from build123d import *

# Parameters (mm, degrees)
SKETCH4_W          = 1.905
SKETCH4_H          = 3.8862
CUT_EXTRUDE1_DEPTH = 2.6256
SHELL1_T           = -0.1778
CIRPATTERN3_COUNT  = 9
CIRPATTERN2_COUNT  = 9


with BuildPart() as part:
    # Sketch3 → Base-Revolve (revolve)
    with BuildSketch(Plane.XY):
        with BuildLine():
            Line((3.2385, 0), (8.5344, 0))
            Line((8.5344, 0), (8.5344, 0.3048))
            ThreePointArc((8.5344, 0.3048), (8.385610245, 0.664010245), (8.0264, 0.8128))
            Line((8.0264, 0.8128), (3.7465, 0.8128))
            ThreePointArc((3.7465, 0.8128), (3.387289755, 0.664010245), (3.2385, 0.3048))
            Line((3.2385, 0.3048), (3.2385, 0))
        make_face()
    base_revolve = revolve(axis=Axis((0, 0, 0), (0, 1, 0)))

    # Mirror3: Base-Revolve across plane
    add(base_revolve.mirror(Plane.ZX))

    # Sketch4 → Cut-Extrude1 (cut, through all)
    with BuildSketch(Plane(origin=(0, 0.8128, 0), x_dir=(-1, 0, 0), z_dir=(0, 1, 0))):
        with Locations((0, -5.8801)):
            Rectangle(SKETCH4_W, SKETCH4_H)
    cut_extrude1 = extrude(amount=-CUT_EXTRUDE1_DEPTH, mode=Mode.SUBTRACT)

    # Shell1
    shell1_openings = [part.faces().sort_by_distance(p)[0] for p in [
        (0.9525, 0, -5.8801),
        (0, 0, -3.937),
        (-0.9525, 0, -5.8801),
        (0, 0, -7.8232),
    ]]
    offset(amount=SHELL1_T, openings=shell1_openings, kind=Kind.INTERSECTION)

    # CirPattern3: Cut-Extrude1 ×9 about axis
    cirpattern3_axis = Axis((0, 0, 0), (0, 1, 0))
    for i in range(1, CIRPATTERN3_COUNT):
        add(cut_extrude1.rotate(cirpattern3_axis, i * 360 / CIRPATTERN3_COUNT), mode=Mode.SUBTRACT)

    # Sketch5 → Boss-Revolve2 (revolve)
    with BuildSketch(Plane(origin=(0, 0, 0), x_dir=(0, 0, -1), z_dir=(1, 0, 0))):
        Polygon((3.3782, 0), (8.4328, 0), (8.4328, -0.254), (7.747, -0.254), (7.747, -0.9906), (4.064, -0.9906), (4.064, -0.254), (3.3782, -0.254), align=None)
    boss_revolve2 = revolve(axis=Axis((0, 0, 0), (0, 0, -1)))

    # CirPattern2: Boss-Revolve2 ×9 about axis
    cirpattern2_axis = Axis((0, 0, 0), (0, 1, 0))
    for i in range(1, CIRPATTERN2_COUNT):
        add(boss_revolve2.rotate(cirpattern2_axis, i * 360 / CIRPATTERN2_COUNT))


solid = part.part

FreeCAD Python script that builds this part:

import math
import FreeCAD as App
import Part
import Sketcher

V = App.Vector
Q = App.Units.Quantity


def faces_at(feature, points):
    """Names of the faces that lie closest to the given points."""
    faces = feature.Shape.Faces
    near = lambda p: min(range(len(faces)), key=lambda i: faces[i].distToShape(Part.Vertex(*p))[0])
    return sorted({f"Face{near(p) + 1}" for p in points})

doc = App.newDocument("Part")
params = doc.addObject("Spreadsheet::Sheet", "Params")
for row, (alias, value) in enumerate([
    ("sketch1_radius", "0.02 in"),
    ("sketch1_height", "0.012 in"),
    ("revolution_angle", "360 deg"),
    ("sketch2_width", "0.075 in"),
    ("sketch2_height", "0.153 in"),
    ("thickness_wall", "0.007 in"),
    ("sketch3_width", "0.01 in"),
    ("sketch3_width2", "0.029 in"),
    ("sketch3_height", "0.199 in"),
    ("sketch3_height2", "0.027 in"),
    ("revolution2_angle", "360 deg"),
], start=1):
    params.set(f"A{row}", alias)
    params.set(f"B{row}", "=" + value)
    params.setAlias(f"B{row}", alias)

body = doc.addObject("PartDesign::Body", "Body")

sketch1 = doc.addObject("Sketcher::SketchObject", "Sketch")
body.addObject(sketch1)
sketch1.AttachmentSupport = (doc.XY_Plane, [""])
sketch1.MapMode = "FlatFace"
sketch1.addGeometry([
    Part.LineSegment(V(3.2385, 0, 0), V(8.5344, 0, 0)),
    Part.LineSegment(V(8.5344, 0, 0), V(8.5344, 0.3048, 0)),
    Part.ArcOfCircle(Part.Circle(V(8.0264, 0.3048, 0), V(0, 0, 1), 0.508), math.radians(0), math.radians(90)),
    Part.LineSegment(V(8.0264, 0.8128, 0), V(3.7465, 0.8128, 0)),
    Part.ArcOfCircle(Part.Circle(V(3.7465, 0.3048, 0), V(0, 0, 1), 0.508), math.radians(90), math.radians(180)),
    Part.LineSegment(V(3.2385, 0.3048, 0), V(3.2385, 0, 0)),
], False)
sketch1.addConstraint([
    Sketcher.Constraint("Coincident", 0, 2, 1, 1),
    Sketcher.Constraint("Tangent", 1, 2, 2, 1),
    Sketcher.Constraint("Tangent", 2, 2, 3, 1),
    Sketcher.Constraint("Tangent", 3, 2, 4, 1),
    Sketcher.Constraint("Tangent", 4, 2, 5, 1),
    Sketcher.Constraint("Coincident", 5, 2, 0, 1),
    Sketcher.Constraint("Horizontal", 0),
    Sketcher.Constraint("Vertical", 1),
    Sketcher.Constraint("Horizontal", 3),
    Sketcher.Constraint("Vertical", 5),
    Sketcher.Constraint("Equal", 2, 4),
    Sketcher.Constraint("PointOnObject", 0, 2, -1),
    Sketcher.Constraint("Radius", 2, Q("0.02 in")),
    Sketcher.Constraint("DistanceY", 1, 1, 1, 2, Q("0.012 in")),
    Sketcher.Constraint("DistanceX", 0, 1, 0, 2, Q("0.2085 in")),
    Sketcher.Constraint("DistanceX", -1, 1, 2, 3, Q("0.316 in")),
])
sketch1.setExpression("Constraints[12]", "Params.sketch1_radius")
sketch1.setExpression("Constraints[13]", "Params.sketch1_height")
revolution = doc.addObject("PartDesign::Revolution", "Revolution")
body.addObject(revolution)
revolution.Profile = sketch1
revolution.ReferenceAxis = (sketch1, ["V_Axis"])
revolution.setExpression("Angle", "Params.revolution_angle")
doc.recompute()

mirrored = doc.addObject("PartDesign::Mirrored", "Mirrored")
body.addObject(mirrored)
mirrored.Originals = [revolution]
mirrored.MirrorPlane = (doc.XZ_Plane, [""])
body.Tip = mirrored

sketch2 = doc.addObject("Sketcher::SketchObject", "Sketch001")
body.addObject(sketch2)
sketch2.AttachmentSupport = (doc.XZ_Plane, [""])
sketch2.MapMode = "FlatFace"
sketch2.AttachmentOffset = App.Placement(V(0, 0, -0.032 * 25.4), App.Rotation())
sketch2.addGeometry([
    Part.LineSegment(V(0.9525, -3.937, 0), V(0.9525, -7.8232, 0)),
    Part.LineSegment(V(0.9525, -7.8232, 0), V(-0.9525, -7.8232, 0)),
    Part.LineSegment(V(-0.9525, -7.8232, 0), V(-0.9525, -3.937, 0)),
    Part.LineSegment(V(-0.9525, -3.937, 0), V(0.9525, -3.937, 0)),
], False)
sketch2.addConstraint([
    Sketcher.Constraint("Coincident", 0, 2, 1, 1),
    Sketcher.Constraint("Coincident", 1, 2, 2, 1),
    Sketcher.Constraint("Coincident", 2, 2, 3, 1),
    Sketcher.Constraint("Coincident", 3, 2, 0, 1),
    Sketcher.Constraint("Vertical", 0),
    Sketcher.Constraint("Horizontal", 1),
    Sketcher.Constraint("Vertical", 2),
    Sketcher.Constraint("Horizontal", 3),
    Sketcher.Constraint("DistanceX", 1, 2, 1, 1, Q("0.075 in")),
    Sketcher.Constraint("DistanceY", 0, 2, 0, 1, Q("0.153 in")),
    Sketcher.Constraint("DistanceY", 0, 2, -1, 1, Q("0.308 in")),
    Sketcher.Constraint("DistanceX", -1, 1, 0, 2, Q("0.0375 in")),
])
sketch2.setExpression("Constraints[8]", "Params.sketch2_width")
sketch2.setExpression("Constraints[9]", "Params.sketch2_height")
pocket1 = doc.addObject("PartDesign::Pocket", "Pocket")
body.addObject(pocket1)
pocket1.Profile = sketch2
pocket1.Type = "ThroughAll"
pocket1.Reversed = True
doc.recompute()

thickness = doc.addObject("PartDesign::Thickness", "Thickness")
body.addObject(thickness)
thickness.Base = (pocket1, faces_at(pocket1, [
    (0.953, 0, -5.88),
    (0, 0, -3.937),
    (-0.953, 0, -5.88),
    (0, 0, -7.823),
]))
thickness.setExpression("Value", "Params.thickness_wall")
thickness.Reversed = True
thickness.Join = "Intersection"
doc.recompute()

polarpattern = doc.addObject("PartDesign::PolarPattern", "PolarPattern")
body.addObject(polarpattern)
polarpattern.Originals = [pocket1]
polarpattern.Axis = (doc.Y_Axis, [""])
polarpattern.Angle = 360
polarpattern.Occurrences = 9
body.Tip = polarpattern

sketch3 = doc.addObject("Sketcher::SketchObject", "Sketch002")
body.addObject(sketch3)
sketch3.AttachmentSupport = (doc.YZ_Plane, [""])
sketch3.MapMode = "FlatFace"
sketch3.addGeometry([
    Part.LineSegment(V(0, -8.4328, 0), V(0, -3.3782, 0)),
    Part.LineSegment(V(0, -3.3782, 0), V(-0.254, -3.3782, 0)),
    Part.LineSegment(V(-0.254, -3.3782, 0), V(-0.254, -4.064, 0)),
    Part.LineSegment(V(-0.254, -4.064, 0), V(-0.9906, -4.064, 0)),
    Part.LineSegment(V(-0.9906, -4.064, 0), V(-0.9906, -7.747, 0)),
    Part.LineSegment(V(-0.9906, -7.747, 0), V(-0.254, -7.747, 0)),
    Part.LineSegment(V(-0.254, -7.747, 0), V(-0.254, -8.4328, 0)),
    Part.LineSegment(V(-0.254, -8.4328, 0), V(0, -8.4328, 0)),
], False)
sketch3.addConstraint([
    Sketcher.Constraint("Coincident", 0, 2, 1, 1),
    Sketcher.Constraint("Coincident", 1, 2, 2, 1),
    Sketcher.Constraint("Coincident", 2, 2, 3, 1),
    Sketcher.Constraint("Coincident", 3, 2, 4, 1),
    Sketcher.Constraint("Coincident", 4, 2, 5, 1),
    Sketcher.Constraint("Coincident", 5, 2, 6, 1),
    Sketcher.Constraint("Coincident", 6, 2, 7, 1),
    Sketcher.Constraint("Coincident", 7, 2, 0, 1),
    Sketcher.Constraint("Vertical", 0),
    Sketcher.Constraint("Horizontal", 1),
    Sketcher.Constraint("Vertical", 2),
    Sketcher.Constraint("Horizontal", 3),
    Sketcher.Constraint("Vertical", 4),
    Sketcher.Constraint("Horizontal", 5),
    Sketcher.Constraint("Vertical", 6),
    Sketcher.Constraint("Horizontal", 7),
    Sketcher.Constraint("PointOnObject", 0, 2, -2),
    Sketcher.Constraint("Vertical", 2, 2, 5, 2),
    Sketcher.Constraint("Equal", 2, 6),
    Sketcher.Constraint("DistanceX", 1, 2, 1, 1, Q("0.01 in")),
    Sketcher.Constraint("DistanceX", 3, 2, 3, 1, Q("0.029 in")),
    Sketcher.Constraint("DistanceY", 0, 1, 0, 2, Q("0.199 in")),
    Sketcher.Constraint("DistanceY", 2, 2, 2, 1, Q("0.027 in")),
    Sketcher.Constraint("DistanceY", 2, 2, -1, 1, Q("0.16 in")),
])
sketch3.setExpression("Constraints[19]", "Params.sketch3_width")
sketch3.setExpression("Constraints[20]", "Params.sketch3_width2")
sketch3.setExpression("Constraints[21]", "Params.sketch3_height")
sketch3.setExpression("Constraints[22]", "Params.sketch3_height2")
revolution2 = doc.addObject("PartDesign::Revolution", "Revolution001")
body.addObject(revolution2)
revolution2.Profile = sketch3
revolution2.ReferenceAxis = (sketch3, ["V_Axis"])
revolution2.setExpression("Angle", "Params.revolution2_angle")
doc.recompute()

polarpattern2 = doc.addObject("PartDesign::PolarPattern", "PolarPattern001")
body.addObject(polarpattern2)
polarpattern2.Originals = [revolution2]
polarpattern2.Axis = (doc.Y_Axis, [""])
polarpattern2.Angle = 360
polarpattern2.Occurrences = 9
body.Tip = polarpattern2

doc.recompute()
